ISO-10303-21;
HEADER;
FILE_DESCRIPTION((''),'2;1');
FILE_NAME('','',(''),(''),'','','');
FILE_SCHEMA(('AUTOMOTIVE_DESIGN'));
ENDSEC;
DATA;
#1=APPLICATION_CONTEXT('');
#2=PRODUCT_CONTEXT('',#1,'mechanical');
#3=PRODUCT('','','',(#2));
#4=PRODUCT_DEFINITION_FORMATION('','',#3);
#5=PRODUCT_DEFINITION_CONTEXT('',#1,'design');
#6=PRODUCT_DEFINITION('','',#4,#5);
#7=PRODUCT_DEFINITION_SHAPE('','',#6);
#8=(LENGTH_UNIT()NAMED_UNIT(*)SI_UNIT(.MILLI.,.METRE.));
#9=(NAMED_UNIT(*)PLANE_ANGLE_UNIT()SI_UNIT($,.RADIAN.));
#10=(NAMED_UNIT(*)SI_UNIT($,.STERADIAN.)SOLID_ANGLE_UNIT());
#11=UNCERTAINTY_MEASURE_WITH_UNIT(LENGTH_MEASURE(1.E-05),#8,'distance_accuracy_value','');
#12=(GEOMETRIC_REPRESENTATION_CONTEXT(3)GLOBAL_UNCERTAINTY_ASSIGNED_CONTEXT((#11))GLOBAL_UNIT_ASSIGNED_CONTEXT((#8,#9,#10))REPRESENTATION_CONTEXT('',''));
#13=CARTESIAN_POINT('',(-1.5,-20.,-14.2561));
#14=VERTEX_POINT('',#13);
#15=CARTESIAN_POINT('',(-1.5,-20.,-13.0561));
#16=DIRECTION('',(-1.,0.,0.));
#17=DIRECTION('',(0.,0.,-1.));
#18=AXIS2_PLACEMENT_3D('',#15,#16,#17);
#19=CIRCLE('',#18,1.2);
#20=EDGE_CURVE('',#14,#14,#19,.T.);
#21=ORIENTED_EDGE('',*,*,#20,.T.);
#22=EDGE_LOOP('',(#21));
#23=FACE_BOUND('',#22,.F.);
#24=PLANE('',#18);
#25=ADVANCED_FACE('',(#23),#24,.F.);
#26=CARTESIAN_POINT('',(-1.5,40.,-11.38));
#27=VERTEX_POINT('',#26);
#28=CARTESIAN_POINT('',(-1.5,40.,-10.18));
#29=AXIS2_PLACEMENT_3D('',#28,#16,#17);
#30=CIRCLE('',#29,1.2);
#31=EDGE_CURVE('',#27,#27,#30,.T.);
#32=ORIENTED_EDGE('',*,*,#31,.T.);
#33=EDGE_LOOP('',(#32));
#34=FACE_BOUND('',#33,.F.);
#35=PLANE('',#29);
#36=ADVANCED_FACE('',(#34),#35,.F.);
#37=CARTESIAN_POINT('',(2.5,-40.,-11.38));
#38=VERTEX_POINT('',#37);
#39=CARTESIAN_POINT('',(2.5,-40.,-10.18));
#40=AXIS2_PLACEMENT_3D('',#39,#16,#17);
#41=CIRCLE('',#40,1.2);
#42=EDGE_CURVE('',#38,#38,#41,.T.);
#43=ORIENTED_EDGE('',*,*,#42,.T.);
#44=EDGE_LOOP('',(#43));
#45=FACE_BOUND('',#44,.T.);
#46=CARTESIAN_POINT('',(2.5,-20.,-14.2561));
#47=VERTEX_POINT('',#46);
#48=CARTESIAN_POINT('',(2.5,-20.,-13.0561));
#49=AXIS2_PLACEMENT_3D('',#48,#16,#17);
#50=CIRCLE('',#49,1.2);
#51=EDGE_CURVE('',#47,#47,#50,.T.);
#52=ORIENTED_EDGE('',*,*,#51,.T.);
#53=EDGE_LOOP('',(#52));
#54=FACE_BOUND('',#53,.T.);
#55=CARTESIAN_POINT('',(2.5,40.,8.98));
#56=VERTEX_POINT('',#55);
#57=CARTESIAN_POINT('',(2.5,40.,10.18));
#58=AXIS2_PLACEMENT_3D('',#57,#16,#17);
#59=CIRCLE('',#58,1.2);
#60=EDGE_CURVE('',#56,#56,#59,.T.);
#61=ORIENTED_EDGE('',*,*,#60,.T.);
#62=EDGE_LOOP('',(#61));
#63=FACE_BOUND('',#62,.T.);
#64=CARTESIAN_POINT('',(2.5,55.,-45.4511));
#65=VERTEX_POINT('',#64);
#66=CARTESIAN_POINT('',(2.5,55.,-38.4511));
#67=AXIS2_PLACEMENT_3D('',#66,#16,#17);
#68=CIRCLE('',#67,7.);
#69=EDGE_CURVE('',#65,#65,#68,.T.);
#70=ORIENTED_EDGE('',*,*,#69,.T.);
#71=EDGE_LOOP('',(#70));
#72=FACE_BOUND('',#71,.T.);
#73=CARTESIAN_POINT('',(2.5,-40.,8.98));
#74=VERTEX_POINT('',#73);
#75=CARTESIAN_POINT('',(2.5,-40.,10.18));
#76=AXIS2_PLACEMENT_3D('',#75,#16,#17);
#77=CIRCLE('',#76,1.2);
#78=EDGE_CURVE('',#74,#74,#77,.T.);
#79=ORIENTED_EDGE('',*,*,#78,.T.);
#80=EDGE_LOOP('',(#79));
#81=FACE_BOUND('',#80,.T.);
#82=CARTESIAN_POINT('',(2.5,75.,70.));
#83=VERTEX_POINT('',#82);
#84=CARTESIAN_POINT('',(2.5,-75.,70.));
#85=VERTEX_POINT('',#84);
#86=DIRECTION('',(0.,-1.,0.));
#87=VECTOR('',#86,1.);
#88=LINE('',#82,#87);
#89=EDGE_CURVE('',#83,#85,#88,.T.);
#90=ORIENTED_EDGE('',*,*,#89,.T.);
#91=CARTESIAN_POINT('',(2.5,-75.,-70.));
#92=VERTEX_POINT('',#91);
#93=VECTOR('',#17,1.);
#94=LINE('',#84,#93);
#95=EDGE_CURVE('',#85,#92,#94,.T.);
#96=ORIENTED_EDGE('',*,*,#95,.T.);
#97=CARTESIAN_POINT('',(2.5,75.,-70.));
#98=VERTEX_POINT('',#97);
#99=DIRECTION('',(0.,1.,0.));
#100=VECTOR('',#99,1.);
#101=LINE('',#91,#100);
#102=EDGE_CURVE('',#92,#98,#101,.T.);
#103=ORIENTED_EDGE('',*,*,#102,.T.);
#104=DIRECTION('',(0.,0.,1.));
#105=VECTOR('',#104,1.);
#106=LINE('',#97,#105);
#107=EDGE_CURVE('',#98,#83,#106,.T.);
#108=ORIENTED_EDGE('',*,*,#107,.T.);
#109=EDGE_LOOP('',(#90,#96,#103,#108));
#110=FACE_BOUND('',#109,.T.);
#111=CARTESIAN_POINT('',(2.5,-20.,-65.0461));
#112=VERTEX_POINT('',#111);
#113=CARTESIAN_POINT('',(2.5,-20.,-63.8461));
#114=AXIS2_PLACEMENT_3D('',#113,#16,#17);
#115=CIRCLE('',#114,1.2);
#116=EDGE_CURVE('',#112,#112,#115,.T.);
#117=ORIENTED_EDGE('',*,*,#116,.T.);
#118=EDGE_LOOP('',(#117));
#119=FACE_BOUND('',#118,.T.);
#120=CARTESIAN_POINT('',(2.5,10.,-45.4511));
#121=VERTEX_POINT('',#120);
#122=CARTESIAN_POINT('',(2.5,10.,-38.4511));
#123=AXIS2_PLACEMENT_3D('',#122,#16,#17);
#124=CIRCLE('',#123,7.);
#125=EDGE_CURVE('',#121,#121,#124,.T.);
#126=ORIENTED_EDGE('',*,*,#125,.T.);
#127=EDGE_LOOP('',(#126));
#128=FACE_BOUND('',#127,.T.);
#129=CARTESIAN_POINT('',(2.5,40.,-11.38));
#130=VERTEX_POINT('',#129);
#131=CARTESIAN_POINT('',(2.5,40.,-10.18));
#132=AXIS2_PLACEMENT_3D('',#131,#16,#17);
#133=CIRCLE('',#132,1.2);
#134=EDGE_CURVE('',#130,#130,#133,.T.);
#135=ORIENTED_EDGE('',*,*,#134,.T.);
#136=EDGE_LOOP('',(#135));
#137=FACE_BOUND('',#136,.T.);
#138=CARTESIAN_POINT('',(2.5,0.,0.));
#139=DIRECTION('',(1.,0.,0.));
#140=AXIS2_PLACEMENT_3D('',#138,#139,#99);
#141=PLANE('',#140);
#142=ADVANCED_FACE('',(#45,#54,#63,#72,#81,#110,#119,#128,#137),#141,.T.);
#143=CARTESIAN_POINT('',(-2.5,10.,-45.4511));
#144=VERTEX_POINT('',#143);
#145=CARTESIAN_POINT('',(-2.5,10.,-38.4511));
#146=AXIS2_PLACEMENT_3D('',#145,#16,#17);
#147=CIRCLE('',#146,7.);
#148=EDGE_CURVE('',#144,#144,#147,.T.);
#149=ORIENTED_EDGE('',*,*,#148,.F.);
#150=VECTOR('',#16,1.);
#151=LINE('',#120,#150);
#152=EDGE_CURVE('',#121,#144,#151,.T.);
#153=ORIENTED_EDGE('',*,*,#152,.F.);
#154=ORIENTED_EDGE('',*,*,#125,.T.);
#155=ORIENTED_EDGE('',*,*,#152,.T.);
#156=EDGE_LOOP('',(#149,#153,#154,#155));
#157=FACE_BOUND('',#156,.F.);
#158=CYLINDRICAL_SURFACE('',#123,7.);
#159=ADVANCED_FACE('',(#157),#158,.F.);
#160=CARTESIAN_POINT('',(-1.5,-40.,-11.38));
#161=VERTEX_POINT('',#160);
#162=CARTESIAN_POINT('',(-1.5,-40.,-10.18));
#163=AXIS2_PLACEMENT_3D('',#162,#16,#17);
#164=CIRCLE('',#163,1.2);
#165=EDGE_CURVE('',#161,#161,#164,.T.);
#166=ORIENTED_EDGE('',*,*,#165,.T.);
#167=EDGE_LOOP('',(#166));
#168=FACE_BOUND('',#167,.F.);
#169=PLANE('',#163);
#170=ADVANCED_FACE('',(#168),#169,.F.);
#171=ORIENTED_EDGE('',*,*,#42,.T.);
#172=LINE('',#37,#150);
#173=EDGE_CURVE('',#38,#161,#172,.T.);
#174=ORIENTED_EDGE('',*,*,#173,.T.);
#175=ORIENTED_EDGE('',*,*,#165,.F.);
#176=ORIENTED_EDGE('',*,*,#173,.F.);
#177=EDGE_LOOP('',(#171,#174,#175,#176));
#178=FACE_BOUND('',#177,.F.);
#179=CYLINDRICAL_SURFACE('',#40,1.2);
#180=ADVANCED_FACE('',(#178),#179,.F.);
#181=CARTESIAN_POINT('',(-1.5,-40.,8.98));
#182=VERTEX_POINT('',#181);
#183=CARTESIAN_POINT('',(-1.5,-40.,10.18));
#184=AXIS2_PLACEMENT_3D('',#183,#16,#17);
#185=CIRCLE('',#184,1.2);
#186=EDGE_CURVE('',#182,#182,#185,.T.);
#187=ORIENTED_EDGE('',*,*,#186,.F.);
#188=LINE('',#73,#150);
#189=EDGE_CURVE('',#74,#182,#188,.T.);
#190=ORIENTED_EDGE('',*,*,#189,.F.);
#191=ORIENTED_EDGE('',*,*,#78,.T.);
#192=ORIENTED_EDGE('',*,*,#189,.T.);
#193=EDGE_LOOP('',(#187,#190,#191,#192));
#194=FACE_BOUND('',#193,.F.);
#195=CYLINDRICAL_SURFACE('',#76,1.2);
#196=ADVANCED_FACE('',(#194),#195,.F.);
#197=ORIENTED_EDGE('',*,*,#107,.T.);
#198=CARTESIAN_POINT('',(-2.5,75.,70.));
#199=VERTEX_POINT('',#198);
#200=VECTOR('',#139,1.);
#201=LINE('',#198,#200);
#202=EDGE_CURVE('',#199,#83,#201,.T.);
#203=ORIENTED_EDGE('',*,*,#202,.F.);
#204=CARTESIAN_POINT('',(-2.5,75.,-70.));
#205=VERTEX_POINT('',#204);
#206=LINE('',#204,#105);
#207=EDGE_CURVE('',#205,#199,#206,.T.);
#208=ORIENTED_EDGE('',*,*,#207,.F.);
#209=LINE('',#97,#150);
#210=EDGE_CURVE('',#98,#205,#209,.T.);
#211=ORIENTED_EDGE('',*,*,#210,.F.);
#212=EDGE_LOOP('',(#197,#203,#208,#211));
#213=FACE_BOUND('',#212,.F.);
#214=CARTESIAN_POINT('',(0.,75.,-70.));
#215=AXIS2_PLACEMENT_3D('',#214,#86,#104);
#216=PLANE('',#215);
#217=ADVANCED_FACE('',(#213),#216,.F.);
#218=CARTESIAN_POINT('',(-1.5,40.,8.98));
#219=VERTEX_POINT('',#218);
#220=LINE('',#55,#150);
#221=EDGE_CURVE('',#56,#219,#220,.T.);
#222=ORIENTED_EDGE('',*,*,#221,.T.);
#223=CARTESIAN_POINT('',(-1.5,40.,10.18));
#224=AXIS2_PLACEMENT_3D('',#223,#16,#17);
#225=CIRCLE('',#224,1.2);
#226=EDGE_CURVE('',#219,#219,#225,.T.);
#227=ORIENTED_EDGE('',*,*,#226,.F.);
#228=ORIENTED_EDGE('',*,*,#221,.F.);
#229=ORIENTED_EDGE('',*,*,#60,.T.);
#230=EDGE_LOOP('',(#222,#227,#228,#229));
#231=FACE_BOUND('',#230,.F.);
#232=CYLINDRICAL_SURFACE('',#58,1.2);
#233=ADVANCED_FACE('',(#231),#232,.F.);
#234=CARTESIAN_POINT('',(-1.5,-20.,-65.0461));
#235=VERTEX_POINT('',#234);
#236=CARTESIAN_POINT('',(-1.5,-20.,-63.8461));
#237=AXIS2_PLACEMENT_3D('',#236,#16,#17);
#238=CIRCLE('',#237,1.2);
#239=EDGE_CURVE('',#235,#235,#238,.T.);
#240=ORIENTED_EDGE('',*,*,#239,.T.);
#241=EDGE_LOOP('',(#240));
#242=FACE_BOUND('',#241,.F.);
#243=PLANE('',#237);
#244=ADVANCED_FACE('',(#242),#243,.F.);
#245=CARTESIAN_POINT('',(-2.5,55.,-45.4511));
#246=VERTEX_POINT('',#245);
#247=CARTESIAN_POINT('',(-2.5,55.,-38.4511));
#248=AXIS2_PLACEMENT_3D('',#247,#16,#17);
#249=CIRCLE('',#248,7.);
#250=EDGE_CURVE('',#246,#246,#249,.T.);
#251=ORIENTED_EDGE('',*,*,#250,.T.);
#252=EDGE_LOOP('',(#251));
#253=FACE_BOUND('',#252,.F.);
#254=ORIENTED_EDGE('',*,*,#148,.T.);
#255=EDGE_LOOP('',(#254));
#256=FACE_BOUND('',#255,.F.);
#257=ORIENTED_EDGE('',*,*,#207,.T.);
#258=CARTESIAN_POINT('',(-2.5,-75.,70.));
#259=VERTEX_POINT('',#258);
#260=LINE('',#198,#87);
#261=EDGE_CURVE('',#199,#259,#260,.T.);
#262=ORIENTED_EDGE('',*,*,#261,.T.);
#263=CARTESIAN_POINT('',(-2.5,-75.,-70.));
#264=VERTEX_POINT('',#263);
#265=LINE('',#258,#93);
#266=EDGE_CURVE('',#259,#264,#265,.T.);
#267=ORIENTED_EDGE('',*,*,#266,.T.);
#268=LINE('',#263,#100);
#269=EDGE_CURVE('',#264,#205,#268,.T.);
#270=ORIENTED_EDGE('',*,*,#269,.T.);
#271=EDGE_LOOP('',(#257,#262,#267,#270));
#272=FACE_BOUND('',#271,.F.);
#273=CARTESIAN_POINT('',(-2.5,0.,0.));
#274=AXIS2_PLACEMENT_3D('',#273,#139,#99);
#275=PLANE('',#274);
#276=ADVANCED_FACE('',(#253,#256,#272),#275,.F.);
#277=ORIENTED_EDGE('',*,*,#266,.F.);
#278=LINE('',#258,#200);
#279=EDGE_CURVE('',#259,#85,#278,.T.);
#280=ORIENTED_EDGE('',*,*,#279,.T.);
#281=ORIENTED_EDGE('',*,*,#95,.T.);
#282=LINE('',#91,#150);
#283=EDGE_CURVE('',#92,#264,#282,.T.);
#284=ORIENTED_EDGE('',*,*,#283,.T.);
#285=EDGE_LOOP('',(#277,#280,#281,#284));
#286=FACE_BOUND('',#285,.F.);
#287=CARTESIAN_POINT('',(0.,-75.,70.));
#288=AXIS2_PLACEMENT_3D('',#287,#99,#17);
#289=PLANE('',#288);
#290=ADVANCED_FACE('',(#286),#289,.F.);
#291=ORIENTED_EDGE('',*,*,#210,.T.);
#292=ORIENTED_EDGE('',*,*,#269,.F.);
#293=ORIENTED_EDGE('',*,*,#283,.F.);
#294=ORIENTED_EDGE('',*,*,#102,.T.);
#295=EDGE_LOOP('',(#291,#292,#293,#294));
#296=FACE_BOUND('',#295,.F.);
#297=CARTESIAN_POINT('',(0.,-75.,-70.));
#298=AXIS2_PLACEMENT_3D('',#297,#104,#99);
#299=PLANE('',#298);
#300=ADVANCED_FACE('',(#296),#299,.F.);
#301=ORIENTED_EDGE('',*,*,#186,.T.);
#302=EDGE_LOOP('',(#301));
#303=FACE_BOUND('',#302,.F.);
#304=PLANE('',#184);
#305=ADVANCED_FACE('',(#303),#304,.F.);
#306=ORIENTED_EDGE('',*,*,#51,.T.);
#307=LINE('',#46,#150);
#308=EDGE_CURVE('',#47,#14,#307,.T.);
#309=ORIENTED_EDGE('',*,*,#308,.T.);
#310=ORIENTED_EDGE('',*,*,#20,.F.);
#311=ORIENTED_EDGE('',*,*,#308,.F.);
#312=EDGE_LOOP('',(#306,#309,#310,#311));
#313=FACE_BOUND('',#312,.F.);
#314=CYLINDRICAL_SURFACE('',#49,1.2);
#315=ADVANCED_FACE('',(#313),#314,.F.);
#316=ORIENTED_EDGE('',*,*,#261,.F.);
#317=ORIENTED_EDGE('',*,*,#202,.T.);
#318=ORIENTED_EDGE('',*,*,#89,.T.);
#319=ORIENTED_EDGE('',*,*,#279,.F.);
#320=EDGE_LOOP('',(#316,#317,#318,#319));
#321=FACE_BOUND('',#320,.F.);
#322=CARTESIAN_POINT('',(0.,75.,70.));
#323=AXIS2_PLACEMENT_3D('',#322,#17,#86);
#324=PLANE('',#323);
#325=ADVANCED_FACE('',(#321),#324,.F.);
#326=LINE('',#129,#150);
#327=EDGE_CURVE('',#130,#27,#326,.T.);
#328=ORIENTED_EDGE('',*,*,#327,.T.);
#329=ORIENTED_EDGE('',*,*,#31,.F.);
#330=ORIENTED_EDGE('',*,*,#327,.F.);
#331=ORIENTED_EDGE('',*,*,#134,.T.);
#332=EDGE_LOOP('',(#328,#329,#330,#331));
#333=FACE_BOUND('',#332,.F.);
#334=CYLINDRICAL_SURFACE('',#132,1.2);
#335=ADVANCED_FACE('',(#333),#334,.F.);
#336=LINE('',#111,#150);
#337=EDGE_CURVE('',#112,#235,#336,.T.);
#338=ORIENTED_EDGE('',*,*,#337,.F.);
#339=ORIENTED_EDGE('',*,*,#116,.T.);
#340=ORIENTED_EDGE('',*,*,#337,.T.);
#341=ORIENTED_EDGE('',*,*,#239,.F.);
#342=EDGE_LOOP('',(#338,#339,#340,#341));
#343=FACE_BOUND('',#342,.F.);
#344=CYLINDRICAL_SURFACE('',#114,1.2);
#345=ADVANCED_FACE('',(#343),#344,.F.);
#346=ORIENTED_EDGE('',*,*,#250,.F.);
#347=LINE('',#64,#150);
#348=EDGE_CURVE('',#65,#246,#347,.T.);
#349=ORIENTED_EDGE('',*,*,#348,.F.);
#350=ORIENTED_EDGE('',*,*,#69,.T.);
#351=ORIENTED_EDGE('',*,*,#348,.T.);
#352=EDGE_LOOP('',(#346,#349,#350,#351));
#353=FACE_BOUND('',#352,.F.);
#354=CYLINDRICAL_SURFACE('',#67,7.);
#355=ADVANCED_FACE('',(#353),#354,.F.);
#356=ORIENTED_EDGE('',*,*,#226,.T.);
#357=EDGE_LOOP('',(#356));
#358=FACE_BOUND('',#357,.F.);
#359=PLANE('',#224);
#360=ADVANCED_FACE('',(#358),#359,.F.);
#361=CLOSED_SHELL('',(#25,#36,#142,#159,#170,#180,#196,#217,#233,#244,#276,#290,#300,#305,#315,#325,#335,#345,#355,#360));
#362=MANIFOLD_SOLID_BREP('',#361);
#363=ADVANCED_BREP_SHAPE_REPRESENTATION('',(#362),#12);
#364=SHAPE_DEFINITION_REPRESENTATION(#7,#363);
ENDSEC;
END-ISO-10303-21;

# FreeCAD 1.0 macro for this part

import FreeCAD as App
import Part
import Sketcher

V = App.Vector
Q = App.Units.Quantity


def add_polygon(sketch, points):
    """Adds a closed chain of lines whose ends are joined by coincident constraints."""
    first, n = sketch.GeometryCount, len(points)
    for a, b in zip(points, points[1:] + points[:1]):
        sketch.addGeometry(Part.LineSegment(App.Vector(*a, 0), App.Vector(*b, 0)), False)
    for i in range(n):
        sketch.addConstraint(Sketcher.Constraint("Coincident", first + i, 2, first + (i + 1) % n, 1))

doc = App.newDocument("Part")
body = doc.addObject("PartDesign::Body", "Body")

# Sketch on YZ plane
sketch1 = body.newObject("Sketcher::SketchObject", "Sketch")
sketch1.AttachmentSupport = (doc.getObject("YZ_Plane"), [""])
sketch1.MapMode = "FlatFace"
add_polygon(sketch1, [(75, -70), (75, 70), (-75, 70), (-75, -70)])  # lines 0-3
sketch1.addConstraint([
    Sketcher.Constraint("Vertical", 0),
    Sketcher.Constraint("Horizontal", 1),
    Sketcher.Constraint("Vertical", 2),
    Sketcher.Constraint("Horizontal", 3),
    Sketcher.Constraint("Symmetric", 0, 2, 2, 2, -1, 1),
    Sketcher.Constraint("DistanceX", 1, 2, 1, 1, Q("150 mm")),
    Sketcher.Constraint("DistanceY", 0, 1, 0, 2, Q("140 mm")),
])
pad1 = body.newObject("PartDesign::Pad", "Pad")
pad1.Profile = sketch1
pad1.Length = 5
pad1.Midplane = True

# Sketch on YZ plane
sketch2 = body.newObject("Sketcher::SketchObject", "Sketch001")
sketch2.AttachmentSupport = (doc.getObject("YZ_Plane"), [""])
sketch2.MapMode = "FlatFace"
sketch2.AttachmentOffset = App.Placement(V(0, 0, 2.5), App.Rotation())
sketch2.addGeometry([
    Part.Circle(V(40, 10.2, 0), V(0, 0, 1), 1.2),
    Part.Circle(V(40, -10.2, 0), V(0, 0, 1), 1.2),
], False)
sketch2.addConstraint([
    Sketcher.Constraint("Equal", 0, 1),
    Sketcher.Constraint("Symmetric", 0, 3, 1, 3, -1),
    Sketcher.Constraint("Diameter", 0, Q("2.4 mm")),
    Sketcher.Constraint("DistanceX", -1, 1, 0, 3, Q("40 mm")),
    Sketcher.Constraint("DistanceY", -1, 1, 0, 3, Q("10.18 mm")),
])
doc.recompute()
hole = body.newObject("PartDesign::Hole", "Hole")
hole.Profile = sketch2
hole.ThreadType = "None"
hole.Diameter = 2.4
hole.DepthType = "Dimension"
hole.Depth = 4
hole.DrillPoint = "Flat"
doc.recompute()

linearpattern = body.newObject("PartDesign::LinearPattern", "LinearPattern")
linearpattern.Originals = [hole]
linearpattern.Direction = (doc.getObject("Y_Axis"), [""])
linearpattern.Mode = "offset"
linearpattern.Offset = 80
linearpattern.Occurrences = 2
linearpattern.Reversed = True
body.Tip = linearpattern

# Sketch on YZ plane
sketch3 = body.newObject("Sketcher::SketchObject", "Sketch002")
sketch3.AttachmentSupport = (doc.getObject("YZ_Plane"), [""])
sketch3.MapMode = "FlatFace"
sketch3.AttachmentOffset = App.Placement(V(0, 0, 2.5), App.Rotation())
sketch3.addGeometry([
    Part.Circle(V(-20, -13.1, 0), V(0, 0, 1), 1.2),
    Part.Circle(V(-20, -63.8, 0), V(0, 0, 1), 1.2),
], False)
sketch3.addConstraint([
    Sketcher.Constraint("Equal", 0, 1),
    Sketcher.Constraint("Vertical", 0, 3, 1, 3),
    Sketcher.Constraint("Diameter", 0, Q("2.4 mm")),
    Sketcher.Constraint("DistanceX", 0, 3, -1, 1, Q("20 mm")),
    Sketcher.Constraint("DistanceY", 1, 3, 0, 3, Q("50.79 mm")),
    Sketcher.Constraint("DistanceY", 0, 3, -1, 1, Q("13.056 mm")),
])
doc.recompute()
hole2 = body.newObject("PartDesign::Hole", "Hole001")
hole2.Profile = sketch3
hole2.ThreadType = "None"
hole2.Diameter = 2.4
hole2.DepthType = "Dimension"
hole2.Depth = 4
hole2.DrillPoint = "Flat"

# Sketch on YZ plane
sketch4 = body.newObject("Sketcher::SketchObject", "Sketch003")
sketch4.AttachmentSupport = (doc.getObject("YZ_Plane"), [""])
sketch4.MapMode = "FlatFace"
sketch4.AttachmentOffset = App.Placement(V(0, 0, 2.5), App.Rotation())
sketch4.addGeometry([
    Part.Circle(V(55, -38, 0), V(0, 0, 1), 7),
    Part.Circle(V(10, -38, 0), V(0, 0, 1), 7),
], False)
sketch4.addConstraint([
    Sketcher.Constraint("Equal", 0, 1),
    Sketcher.Constraint("Horizontal", 0, 3, 1, 3),
    Sketcher.Constraint("Diameter", 0, Q("14 mm")),
    Sketcher.Constraint("DistanceX", -1, 1, 0, 3, Q("55 mm")),
    Sketcher.Constraint("DistanceX", -1, 1, 1, 3, Q("10 mm")),
    Sketcher.Constraint("DistanceY", 0, 3, -1, 1, Q("38.451 mm")),
])
doc.recompute()
hole3 = body.newObject("PartDesign::Hole", "Hole002")
hole3.Profile = sketch4
hole3.ThreadType = "None"
hole3.Diameter = 14
hole3.DepthType = "Dimension"
hole3.Depth = 5
hole3.DrillPoint = "Flat"

doc.recompute()
